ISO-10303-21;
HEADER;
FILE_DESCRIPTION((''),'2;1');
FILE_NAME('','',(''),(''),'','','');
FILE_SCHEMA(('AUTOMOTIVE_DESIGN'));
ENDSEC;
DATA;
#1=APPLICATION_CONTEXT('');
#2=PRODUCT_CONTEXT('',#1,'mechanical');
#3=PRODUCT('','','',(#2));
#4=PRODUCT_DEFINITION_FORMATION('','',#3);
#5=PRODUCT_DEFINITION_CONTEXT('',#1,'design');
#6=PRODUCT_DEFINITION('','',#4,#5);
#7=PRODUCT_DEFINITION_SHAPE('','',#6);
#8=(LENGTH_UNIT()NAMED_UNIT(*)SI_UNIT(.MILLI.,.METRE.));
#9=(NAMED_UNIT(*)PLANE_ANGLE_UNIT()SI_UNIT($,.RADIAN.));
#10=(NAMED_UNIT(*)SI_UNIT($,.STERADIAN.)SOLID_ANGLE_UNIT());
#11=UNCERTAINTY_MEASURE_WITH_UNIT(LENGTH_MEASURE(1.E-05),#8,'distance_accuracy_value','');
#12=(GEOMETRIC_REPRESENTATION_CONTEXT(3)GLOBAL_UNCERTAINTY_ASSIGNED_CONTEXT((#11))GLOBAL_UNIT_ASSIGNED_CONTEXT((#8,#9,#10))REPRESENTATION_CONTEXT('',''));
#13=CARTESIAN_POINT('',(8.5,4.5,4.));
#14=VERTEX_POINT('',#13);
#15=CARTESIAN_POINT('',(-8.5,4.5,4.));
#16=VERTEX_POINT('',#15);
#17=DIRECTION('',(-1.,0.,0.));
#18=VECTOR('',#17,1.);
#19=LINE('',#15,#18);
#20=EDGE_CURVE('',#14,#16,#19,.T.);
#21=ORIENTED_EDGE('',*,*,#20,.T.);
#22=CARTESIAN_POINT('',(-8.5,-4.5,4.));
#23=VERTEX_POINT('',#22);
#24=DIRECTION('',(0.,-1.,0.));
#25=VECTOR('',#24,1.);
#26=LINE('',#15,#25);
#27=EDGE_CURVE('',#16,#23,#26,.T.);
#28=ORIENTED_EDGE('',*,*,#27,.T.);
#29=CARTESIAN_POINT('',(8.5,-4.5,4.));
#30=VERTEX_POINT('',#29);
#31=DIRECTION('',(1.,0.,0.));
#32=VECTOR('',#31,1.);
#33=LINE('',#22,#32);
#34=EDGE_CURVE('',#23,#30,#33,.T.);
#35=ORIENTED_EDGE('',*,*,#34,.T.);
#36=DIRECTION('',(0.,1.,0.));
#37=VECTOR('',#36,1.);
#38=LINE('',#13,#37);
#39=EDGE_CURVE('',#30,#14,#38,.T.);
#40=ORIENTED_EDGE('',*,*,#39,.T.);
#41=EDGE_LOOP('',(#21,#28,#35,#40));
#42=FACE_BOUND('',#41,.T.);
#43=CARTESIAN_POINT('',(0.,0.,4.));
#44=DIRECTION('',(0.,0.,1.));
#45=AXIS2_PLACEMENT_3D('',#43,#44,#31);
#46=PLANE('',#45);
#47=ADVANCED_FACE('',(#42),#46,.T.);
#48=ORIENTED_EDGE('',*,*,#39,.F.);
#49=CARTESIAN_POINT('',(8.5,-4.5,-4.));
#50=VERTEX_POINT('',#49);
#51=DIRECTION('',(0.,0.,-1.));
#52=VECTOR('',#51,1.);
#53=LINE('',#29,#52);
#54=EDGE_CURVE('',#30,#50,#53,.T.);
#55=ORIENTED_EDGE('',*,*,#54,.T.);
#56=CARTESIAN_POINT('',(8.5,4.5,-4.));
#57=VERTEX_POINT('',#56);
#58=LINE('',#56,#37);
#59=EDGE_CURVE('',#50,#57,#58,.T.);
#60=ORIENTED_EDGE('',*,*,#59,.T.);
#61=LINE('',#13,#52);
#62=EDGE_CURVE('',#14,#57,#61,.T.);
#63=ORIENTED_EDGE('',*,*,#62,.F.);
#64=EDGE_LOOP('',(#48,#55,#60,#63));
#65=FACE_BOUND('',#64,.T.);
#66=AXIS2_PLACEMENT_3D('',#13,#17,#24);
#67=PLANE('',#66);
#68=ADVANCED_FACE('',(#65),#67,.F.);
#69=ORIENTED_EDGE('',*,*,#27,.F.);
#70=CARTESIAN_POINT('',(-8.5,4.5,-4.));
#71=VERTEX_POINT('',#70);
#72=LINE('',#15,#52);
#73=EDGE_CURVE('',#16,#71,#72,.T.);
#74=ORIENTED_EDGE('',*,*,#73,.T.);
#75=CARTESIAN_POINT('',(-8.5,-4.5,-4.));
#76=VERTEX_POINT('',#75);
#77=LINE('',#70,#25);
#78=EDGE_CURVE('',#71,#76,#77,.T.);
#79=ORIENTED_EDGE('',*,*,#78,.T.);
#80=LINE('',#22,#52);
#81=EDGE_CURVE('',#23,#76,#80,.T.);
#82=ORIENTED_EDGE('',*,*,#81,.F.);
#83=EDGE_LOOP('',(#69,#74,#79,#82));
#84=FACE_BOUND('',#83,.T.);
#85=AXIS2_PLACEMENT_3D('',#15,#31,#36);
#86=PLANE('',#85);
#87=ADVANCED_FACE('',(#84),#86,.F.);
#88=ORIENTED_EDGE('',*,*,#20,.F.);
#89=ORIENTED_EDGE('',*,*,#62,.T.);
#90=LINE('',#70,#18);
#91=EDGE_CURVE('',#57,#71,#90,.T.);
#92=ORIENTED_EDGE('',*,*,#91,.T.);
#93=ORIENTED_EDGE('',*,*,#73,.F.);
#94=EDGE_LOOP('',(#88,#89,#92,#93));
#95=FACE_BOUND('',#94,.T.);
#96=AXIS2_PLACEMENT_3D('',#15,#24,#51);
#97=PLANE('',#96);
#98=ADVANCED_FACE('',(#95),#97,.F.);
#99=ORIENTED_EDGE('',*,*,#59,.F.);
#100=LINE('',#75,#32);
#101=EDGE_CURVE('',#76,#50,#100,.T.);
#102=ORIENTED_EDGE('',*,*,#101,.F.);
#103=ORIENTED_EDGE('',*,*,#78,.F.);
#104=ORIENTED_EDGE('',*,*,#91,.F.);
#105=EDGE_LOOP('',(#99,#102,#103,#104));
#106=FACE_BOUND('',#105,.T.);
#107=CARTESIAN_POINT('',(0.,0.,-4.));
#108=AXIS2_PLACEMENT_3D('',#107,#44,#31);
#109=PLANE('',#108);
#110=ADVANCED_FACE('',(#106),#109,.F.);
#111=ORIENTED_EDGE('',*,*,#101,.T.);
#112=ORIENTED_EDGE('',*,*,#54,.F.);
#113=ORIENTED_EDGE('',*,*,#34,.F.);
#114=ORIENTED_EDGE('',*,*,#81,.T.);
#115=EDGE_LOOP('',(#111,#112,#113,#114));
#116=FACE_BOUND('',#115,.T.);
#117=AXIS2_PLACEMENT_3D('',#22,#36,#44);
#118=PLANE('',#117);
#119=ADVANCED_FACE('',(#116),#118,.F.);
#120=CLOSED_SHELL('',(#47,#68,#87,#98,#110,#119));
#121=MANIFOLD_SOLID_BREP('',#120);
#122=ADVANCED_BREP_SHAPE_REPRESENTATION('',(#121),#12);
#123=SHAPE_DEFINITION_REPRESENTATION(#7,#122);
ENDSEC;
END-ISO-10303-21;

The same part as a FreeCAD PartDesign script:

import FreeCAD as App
import Part
import Sketcher

V = App.Vector

doc = App.newDocument("Part")
params = doc.addObject("Spreadsheet::Sheet", "Params")
for row, (alias, value) in enumerate([
    ("sketch1_width", "17 mm"),
    ("sketch1_height", "9 mm"),
    ("pad1_length", "8 mm"),
], start=1):
    params.set(f"A{row}", alias)
    params.set(f"B{row}", "=" + value)
    params.setAlias(f"B{row}", alias)

body = doc.addObject("PartDesign::Body", "Body")

sketch1 = body.newObject("Sketcher::SketchObject", "Sketch")
sketch1.AttachmentSupport = (doc.getObject("XY_Plane"), [""])
sketch1.MapMode = "FlatFace"
sketch1.addGeometry([
    Part.LineSegment(V(-8.5, 4.5, 0), V(-8.5, -4.5, 0)),
    Part.LineSegment(V(-8.5, -4.5, 0), V(8.5, -4.5, 0)),
    Part.LineSegment(V(8.5, -4.5, 0), V(8.5, 4.5, 0)),
    Part.LineSegment(V(8.5, 4.5, 0), V(-8.5, 4.5, 0)),
], False)
sketch1.addConstraint([
    Sketcher.Constraint("Coincident", 0, 2, 1, 1),
    Sketcher.Constraint("Coincident", 1, 2, 2, 1),
    Sketcher.Constraint("Coincident", 2, 2, 3, 1),
    Sketcher.Constraint("Coincident", 3, 2, 0, 1),
    Sketcher.Constraint("Vertical", 0),
    Sketcher.Constraint("Horizontal", 1),
    Sketcher.Constraint("Vertical", 2),
    Sketcher.Constraint("Horizontal", 3),
    Sketcher.Constraint("Symmetric", 0, 2, 2, 2, -1, 1),
    Sketcher.Constraint("DistanceX", 1, 1, 1, 2, 17.0),
    Sketcher.Constraint("DistanceY", 0, 2, 0, 1, 9.0),
])
sketch1.setExpression("Constraints[9]", "Params.sketch1_width")
sketch1.setExpression("Constraints[10]", "Params.sketch1_height")
pad1 = body.newObject("PartDesign::Pad", "Pad")
pad1.Profile = sketch1
pad1.setExpression("Length", "Params.pad1_length")
pad1.Midplane = True

doc.recompute()
